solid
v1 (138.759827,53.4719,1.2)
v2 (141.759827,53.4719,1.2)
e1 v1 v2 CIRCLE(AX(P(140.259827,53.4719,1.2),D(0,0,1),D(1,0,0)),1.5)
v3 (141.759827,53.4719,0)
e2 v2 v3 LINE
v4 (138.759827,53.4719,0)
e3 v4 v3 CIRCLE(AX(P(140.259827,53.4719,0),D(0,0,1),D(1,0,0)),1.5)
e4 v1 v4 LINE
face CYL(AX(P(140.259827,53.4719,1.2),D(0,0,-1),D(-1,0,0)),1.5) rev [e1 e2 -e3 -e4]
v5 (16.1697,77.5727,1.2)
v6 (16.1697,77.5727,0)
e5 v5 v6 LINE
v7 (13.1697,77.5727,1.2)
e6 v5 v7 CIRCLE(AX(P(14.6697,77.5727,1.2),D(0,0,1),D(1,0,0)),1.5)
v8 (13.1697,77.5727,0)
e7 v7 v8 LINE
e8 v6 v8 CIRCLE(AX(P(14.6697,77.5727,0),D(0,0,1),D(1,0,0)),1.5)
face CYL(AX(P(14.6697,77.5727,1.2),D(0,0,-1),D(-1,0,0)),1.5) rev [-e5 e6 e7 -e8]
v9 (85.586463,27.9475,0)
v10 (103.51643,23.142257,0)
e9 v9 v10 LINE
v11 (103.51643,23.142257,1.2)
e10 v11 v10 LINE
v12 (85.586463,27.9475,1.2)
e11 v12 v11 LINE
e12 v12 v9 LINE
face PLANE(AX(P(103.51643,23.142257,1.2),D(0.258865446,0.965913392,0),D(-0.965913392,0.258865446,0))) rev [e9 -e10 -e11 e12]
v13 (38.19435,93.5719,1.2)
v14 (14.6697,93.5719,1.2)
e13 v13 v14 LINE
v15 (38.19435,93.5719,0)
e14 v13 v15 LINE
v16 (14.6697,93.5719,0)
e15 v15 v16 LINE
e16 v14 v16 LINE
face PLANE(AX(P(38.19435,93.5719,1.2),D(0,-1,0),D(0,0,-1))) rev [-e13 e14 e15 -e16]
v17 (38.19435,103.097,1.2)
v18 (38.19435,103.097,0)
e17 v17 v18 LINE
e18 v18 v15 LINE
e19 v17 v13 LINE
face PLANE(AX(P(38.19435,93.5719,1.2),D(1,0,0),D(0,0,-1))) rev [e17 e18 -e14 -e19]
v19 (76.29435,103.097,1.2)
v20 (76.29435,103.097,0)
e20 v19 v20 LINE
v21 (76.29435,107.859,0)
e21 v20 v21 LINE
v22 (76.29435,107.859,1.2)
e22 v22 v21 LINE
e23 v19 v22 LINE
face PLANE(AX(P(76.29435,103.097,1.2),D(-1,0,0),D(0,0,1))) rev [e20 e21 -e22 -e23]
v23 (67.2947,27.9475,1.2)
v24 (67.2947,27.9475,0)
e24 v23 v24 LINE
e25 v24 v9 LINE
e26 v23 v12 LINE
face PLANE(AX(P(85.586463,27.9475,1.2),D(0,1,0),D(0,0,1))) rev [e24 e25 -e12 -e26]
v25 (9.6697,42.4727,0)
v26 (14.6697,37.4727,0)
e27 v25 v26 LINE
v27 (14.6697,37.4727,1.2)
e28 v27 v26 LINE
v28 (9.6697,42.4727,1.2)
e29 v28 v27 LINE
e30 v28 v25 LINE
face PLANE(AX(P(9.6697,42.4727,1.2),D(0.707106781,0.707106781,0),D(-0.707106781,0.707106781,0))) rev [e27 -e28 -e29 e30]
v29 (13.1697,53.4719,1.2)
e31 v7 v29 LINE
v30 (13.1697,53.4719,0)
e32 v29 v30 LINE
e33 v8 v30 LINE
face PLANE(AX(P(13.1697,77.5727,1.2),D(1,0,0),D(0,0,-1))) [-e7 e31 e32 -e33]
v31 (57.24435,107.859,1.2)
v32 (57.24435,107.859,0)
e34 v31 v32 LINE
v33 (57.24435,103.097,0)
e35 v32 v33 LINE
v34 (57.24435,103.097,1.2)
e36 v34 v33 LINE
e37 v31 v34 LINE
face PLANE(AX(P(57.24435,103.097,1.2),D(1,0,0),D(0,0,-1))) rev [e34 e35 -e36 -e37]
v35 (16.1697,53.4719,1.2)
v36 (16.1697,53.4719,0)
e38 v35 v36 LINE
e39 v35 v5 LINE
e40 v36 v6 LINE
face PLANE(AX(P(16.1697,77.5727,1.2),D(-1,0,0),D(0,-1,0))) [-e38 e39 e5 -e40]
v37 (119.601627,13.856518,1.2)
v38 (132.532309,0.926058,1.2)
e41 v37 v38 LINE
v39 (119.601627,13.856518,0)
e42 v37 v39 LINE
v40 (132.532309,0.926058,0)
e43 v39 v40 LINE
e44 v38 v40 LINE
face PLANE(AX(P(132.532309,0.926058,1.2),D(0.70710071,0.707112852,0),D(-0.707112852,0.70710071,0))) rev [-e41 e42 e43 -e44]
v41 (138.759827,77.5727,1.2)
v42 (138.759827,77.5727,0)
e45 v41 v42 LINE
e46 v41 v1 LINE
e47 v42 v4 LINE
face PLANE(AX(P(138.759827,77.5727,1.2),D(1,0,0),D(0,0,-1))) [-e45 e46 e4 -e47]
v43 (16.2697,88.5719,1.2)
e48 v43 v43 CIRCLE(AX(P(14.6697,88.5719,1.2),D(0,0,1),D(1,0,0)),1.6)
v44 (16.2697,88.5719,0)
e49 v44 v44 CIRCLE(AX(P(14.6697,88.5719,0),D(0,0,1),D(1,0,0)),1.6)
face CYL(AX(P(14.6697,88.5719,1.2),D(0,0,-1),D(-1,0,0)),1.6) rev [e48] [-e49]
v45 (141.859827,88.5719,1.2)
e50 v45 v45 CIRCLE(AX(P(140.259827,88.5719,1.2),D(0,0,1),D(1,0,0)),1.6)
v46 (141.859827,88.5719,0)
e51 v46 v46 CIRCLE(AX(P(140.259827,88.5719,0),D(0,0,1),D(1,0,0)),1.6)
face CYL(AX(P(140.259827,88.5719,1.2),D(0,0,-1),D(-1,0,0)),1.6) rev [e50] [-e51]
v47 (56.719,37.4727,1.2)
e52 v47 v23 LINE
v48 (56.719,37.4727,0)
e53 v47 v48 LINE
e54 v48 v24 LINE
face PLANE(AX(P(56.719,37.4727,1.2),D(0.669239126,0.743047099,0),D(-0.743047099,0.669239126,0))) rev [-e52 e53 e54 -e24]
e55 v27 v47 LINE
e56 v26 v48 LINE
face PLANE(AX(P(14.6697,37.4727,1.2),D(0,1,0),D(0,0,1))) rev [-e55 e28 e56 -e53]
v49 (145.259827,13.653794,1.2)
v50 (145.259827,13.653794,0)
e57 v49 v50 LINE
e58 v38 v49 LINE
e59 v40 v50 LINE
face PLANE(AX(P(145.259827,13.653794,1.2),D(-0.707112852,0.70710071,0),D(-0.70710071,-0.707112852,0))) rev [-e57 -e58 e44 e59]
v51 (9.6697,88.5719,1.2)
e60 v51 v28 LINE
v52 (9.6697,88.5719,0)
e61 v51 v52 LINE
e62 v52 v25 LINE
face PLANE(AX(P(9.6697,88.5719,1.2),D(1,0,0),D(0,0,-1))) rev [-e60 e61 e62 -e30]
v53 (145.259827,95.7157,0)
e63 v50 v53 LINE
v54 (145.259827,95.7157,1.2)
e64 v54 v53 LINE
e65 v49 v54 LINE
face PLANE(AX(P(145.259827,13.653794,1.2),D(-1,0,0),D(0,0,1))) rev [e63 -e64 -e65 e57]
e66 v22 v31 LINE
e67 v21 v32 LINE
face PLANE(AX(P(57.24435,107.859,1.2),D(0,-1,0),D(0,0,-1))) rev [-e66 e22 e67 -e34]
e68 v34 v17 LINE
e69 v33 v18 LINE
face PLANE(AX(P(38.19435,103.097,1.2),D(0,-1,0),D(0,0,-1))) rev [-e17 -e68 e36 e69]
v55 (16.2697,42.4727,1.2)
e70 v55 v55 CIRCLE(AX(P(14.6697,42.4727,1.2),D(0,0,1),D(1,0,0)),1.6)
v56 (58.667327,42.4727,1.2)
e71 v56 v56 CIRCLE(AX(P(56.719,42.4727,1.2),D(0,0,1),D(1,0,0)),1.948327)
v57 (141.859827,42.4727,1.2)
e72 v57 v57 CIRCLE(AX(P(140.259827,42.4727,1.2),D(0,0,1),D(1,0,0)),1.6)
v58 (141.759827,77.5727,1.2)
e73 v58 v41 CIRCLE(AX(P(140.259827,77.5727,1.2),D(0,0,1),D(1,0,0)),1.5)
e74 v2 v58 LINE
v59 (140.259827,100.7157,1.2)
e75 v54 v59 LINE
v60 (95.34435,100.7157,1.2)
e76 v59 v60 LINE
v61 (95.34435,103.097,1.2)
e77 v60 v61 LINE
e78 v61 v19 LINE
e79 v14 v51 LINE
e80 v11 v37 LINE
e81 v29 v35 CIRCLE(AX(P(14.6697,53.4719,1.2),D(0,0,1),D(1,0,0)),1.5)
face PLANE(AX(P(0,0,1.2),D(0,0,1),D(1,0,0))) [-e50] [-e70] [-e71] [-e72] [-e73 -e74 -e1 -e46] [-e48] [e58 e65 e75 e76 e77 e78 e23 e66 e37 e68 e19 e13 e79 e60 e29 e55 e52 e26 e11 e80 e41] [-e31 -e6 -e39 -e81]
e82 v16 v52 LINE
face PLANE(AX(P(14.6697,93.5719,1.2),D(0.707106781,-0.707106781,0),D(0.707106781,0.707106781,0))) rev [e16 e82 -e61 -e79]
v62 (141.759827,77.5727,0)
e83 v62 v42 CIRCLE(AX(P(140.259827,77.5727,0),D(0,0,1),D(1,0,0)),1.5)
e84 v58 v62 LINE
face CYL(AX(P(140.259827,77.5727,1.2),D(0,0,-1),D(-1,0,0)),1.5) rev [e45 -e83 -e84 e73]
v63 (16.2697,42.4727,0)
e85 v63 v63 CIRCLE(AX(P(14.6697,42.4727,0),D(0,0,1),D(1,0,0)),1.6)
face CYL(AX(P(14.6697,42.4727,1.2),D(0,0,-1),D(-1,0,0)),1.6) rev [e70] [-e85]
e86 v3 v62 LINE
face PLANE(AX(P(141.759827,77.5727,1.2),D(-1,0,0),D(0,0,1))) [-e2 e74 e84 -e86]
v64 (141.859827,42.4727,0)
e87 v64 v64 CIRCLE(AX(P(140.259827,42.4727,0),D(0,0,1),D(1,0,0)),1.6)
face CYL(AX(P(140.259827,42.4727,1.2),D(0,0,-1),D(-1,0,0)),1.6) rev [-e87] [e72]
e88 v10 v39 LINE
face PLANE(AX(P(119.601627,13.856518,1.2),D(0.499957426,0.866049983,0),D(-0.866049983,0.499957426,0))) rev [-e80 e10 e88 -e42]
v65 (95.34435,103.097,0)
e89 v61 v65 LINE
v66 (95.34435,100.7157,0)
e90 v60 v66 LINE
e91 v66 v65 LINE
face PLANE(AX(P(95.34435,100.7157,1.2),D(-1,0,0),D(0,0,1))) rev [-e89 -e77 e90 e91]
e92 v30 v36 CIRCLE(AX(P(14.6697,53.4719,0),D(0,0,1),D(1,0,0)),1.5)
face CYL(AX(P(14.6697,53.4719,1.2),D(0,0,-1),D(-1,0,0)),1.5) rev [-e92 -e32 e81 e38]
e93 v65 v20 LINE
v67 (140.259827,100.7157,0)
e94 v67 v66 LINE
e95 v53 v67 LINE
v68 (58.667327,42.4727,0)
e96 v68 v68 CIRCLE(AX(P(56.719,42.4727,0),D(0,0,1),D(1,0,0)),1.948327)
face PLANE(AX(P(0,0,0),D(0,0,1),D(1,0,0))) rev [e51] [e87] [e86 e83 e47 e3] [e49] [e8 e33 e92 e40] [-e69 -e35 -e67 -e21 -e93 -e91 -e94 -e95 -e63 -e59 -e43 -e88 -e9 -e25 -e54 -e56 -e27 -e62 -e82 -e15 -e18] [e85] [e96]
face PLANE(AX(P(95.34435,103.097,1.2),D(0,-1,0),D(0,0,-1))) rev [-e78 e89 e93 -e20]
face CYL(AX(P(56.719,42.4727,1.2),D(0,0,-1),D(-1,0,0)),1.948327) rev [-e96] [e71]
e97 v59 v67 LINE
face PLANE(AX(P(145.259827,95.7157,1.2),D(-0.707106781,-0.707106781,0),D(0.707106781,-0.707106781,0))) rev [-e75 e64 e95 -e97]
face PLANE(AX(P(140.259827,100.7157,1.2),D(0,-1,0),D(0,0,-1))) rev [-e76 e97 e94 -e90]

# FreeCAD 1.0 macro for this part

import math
import FreeCAD as App
import Part
import Sketcher

V = App.Vector
Q = App.Units.Quantity

doc = App.newDocument("Part")
body = doc.addObject("PartDesign::Body", "Body")

sketch1 = body.newObject("Sketcher::SketchObject", "Sketch")
sketch1.AttachmentSupport = (doc.getObject("XY_Plane"), [""])
sketch1.MapMode = "FlatFace"
sketch1.addGeometry(Part.LineSegment(V(38.19435, 93.5719, 0), V(14.6697, 93.5719, 0)), False)
sketch1.addGeometry(Part.LineSegment(V(14.6697, 93.5719, 0), V(9.6697, 88.5719, 0)), False)
sketch1.addGeometry(Part.LineSegment(V(9.6697, 88.5719, 0), V(9.6697, 42.4727, 0)), False)
sketch1.addGeometry(Part.LineSegment(V(9.6697, 42.4727, 0), V(14.6697, 37.4727, 0)), False)
sketch1.addGeometry(Part.LineSegment(V(14.6697, 37.4727, 0), V(56.719, 37.4727, 0)), False)
sketch1.addGeometry(Part.LineSegment(V(56.719, 37.4727, 0), V(67.2947, 27.9475, 0)), False)
sketch1.addGeometry(Part.LineSegment(V(67.2947, 27.9475, 0), V(85.586463, 27.9475, 0)), False)
sketch1.addGeometry(Part.LineSegment(V(85.586463, 27.9475, 0), V(103.51643, 23.142257, 0)), False)
sketch1.addGeometry(Part.LineSegment(V(103.51643, 23.142257, 0), V(119.601627, 13.856518, 0)), False)
sketch1.addGeometry(Part.LineSegment(V(119.601627, 13.856518, 0), V(132.532309, 0.926058, 0)), False)
sketch1.addGeometry(Part.LineSegment(V(132.532309, 0.926058, 0), V(145.259827, 13.653794, 0)), False)
sketch1.addGeometry(Part.LineSegment(V(145.259827, 13.653794, 0), V(145.259827, 95.7157, 0)), False)
sketch1.addGeometry(Part.LineSegment(V(145.259827, 95.7157, 0), V(140.259827, 100.7157, 0)), False)
sketch1.addGeometry(Part.LineSegment(V(140.259827, 100.7157, 0), V(95.34435, 100.7157, 0)), False)
sketch1.addGeometry(Part.LineSegment(V(95.34435, 100.7157, 0), V(95.34435, 103.097, 0)), False)
sketch1.addGeometry(Part.LineSegment(V(95.34435, 103.097, 0), V(76.29435, 103.097, 0)), False)
sketch1.addGeometry(Part.LineSegment(V(76.29435, 103.097, 0), V(76.29435, 107.859, 0)), False)
sketch1.addGeometry(Part.LineSegment(V(76.29435, 107.859, 0), V(57.24435, 107.859, 0)), False)
sketch1.addGeometry(Part.LineSegment(V(57.24435, 107.859, 0), V(57.24435, 103.097, 0)), False)
sketch1.addGeometry(Part.LineSegment(V(57.24435, 103.097, 0), V(38.19435, 103.097, 0)), False)
sketch1.addGeometry(Part.LineSegment(V(38.19435, 103.097, 0), V(38.19435, 93.5719, 0)), False)
sketch1.addGeometry(Part.Circle(V(14.6697, 42.4727, 0), V(0, 0, 1), 1.6), False)
sketch1.addGeometry(Part.Circle(V(56.719, 42.4727, 0), V(0, 0, 1), 1.948327), False)
sketch1.addGeometry(Part.Circle(V(140.259827, 42.4727, 0), V(0, 0, 1), 1.6), False)
sketch1.addGeometry(Part.ArcOfCircle(Part.Circle(V(14.6697, 77.5727, 0), V(0, 0, 1), 1.5), math.radians(0), math.radians(180)), False)
sketch1.addGeometry(Part.LineSegment(V(16.1697, 77.5727, 0), V(16.1697, 53.4719, 0)), False)
sketch1.addGeometry(Part.ArcOfCircle(Part.Circle(V(14.6697, 53.4719, 0), V(0, 0, 1), 1.5), math.radians(180), math.radians(360)), False)
sketch1.addGeometry(Part.LineSegment(V(13.1697, 53.4719, 0), V(13.1697, 77.5727, 0)), False)
sketch1.addGeometry(Part.Circle(V(14.6697, 88.5719, 0), V(0, 0, 1), 1.6), False)
sketch1.addGeometry(Part.ArcOfCircle(Part.Circle(V(140.259827, 77.5727, 0), V(0, 0, 1), 1.5), math.radians(0), math.radians(180)), False)
sketch1.addGeometry(Part.LineSegment(V(141.759827, 77.5727, 0), V(141.759827, 53.4719, 0)), False)
sketch1.addGeometry(Part.ArcOfCircle(Part.Circle(V(140.259827, 53.4719, 0), V(0, 0, 1), 1.5), math.radians(180), math.radians(360)), False)
sketch1.addGeometry(Part.LineSegment(V(138.759827, 53.4719, 0), V(138.759827, 77.5727, 0)), False)
sketch1.addGeometry(Part.Circle(V(140.259827, 88.5719, 0), V(0, 0, 1), 1.6), False)
sketch1.addConstraint(Sketcher.Constraint("Coincident", 0, 2, 1, 1))
sketch1.addConstraint(Sketcher.Constraint("Coincident", 1, 2, 2, 1))
sketch1.addConstraint(Sketcher.Constraint("Coincident", 2, 2, 3, 1))
sketch1.addConstraint(Sketcher.Constraint("Coincident", 3, 2, 4, 1))
sketch1.addConstraint(Sketcher.Constraint("Coincident", 4, 2, 5, 1))
sketch1.addConstraint(Sketcher.Constraint("Coincident", 5, 2, 6, 1))
sketch1.addConstraint(Sketcher.Constraint("Coincident", 6, 2, 7, 1))
sketch1.addConstraint(Sketcher.Constraint("Coincident", 7, 2, 8, 1))
sketch1.addConstraint(Sketcher.Constraint("Coincident", 8, 2, 9, 1))
sketch1.addConstraint(Sketcher.Constraint("Coincident", 9, 2, 10, 1))
sketch1.addConstraint(Sketcher.Constraint("Coincident", 10, 2, 11, 1))
sketch1.addConstraint(Sketcher.Constraint("Coincident", 11, 2, 12, 1))
sketch1.addConstraint(Sketcher.Constraint("Coincident", 12, 2, 13, 1))
sketch1.addConstraint(Sketcher.Constraint("Coincident", 13, 2, 14, 1))
sketch1.addConstraint(Sketcher.Constraint("Coincident", 14, 2, 15, 1))
sketch1.addConstraint(Sketcher.Constraint("Coincident", 15, 2, 16, 1))
sketch1.addConstraint(Sketcher.Constraint("Coincident", 16, 2, 17, 1))
sketch1.addConstraint(Sketcher.Constraint("Coincident", 17, 2, 18, 1))
sketch1.addConstraint(Sketcher.Constraint("Coincident", 18, 2, 19, 1))
sketch1.addConstraint(Sketcher.Constraint("Coincident", 19, 2, 20, 1))
sketch1.addConstraint(Sketcher.Constraint("Coincident", 20, 2, 0, 1))
sketch1.addConstraint(Sketcher.Constraint("Tangent", 24, 1, 25, 1))
sketch1.addConstraint(Sketcher.Constraint("Tangent", 25, 2, 26, 2))
sketch1.addConstraint(Sketcher.Constraint("Tangent", 26, 1, 27, 1))
sketch1.addConstraint(Sketcher.Constraint("Tangent", 27, 2, 24, 2))
sketch1.addConstraint(Sketcher.Constraint("Tangent", 29, 1, 30, 1))
sketch1.addConstraint(Sketcher.Constraint("Tangent", 30, 2, 31, 2))
sketch1.addConstraint(Sketcher.Constraint("Tangent", 31, 1, 32, 1))
sketch1.addConstraint(Sketcher.Constraint("Tangent", 32, 2, 29, 2))
sketch1.addConstraint(Sketcher.Constraint("Horizontal", 0))
sketch1.addConstraint(Sketcher.Constraint("Vertical", 2))
sketch1.addConstraint(Sketcher.Constraint("Horizontal", 4))
sketch1.addConstraint(Sketcher.Constraint("Horizontal", 6))
sketch1.addConstraint(Sketcher.Constraint("Vertical", 11))
sketch1.addConstraint(Sketcher.Constraint("Horizontal", 13))
sketch1.addConstraint(Sketcher.Constraint("Vertical", 14))
sketch1.addConstraint(Sketcher.Constraint("Horizontal", 15))
sketch1.addConstraint(Sketcher.Constraint("Vertical", 16))
sketch1.addConstraint(Sketcher.Constraint("Horizontal", 17))
sketch1.addConstraint(Sketcher.Constraint("Vertical", 18))
sketch1.addConstraint(Sketcher.Constraint("Horizontal", 19))
sketch1.addConstraint(Sketcher.Constraint("Vertical", 20))
sketch1.addConstraint(Sketcher.Constraint("Vertical", 25))
sketch1.addConstraint(Sketcher.Constraint("Vertical", 27))
sketch1.addConstraint(Sketcher.Constraint("Vertical", 30))
sketch1.addConstraint(Sketcher.Constraint("Vertical", 32))
sketch1.addConstraint(Sketcher.Constraint("Equal", 21, 23))
sketch1.addConstraint(Sketcher.Constraint("Equal", 23, 28))
sketch1.addConstraint(Sketcher.Constraint("Equal", 26, 29))
sketch1.addConstraint(Sketcher.Constraint("Equal", 28, 33))
sketch1.addConstraint(Sketcher.Constraint("Perpendicular", 1, 3))
sketch1.addConstraint(Sketcher.Constraint("Perpendicular", 9, 10))
sketch1.addConstraint(Sketcher.Constraint("Parallel", 3, 12))
sketch1.addConstraint(Sketcher.Constraint("Horizontal", 21, 3, 22, 3))
sketch1.addConstraint(Sketcher.Constraint("Horizontal", 22, 3, 23, 3))
sketch1.addConstraint(Sketcher.Constraint("Horizontal", 24, 3, 29, 3))
sketch1.addConstraint(Sketcher.Constraint("Horizontal", 26, 3, 31, 3))
sketch1.addConstraint(Sketcher.Constraint("Horizontal", 28, 3, 33, 3))
sketch1.addConstraint(Sketcher.Constraint("Horizontal", 33, 3, 1, 2))
sketch1.addConstraint(Sketcher.Constraint("Horizontal", 23, 3, 2, 2))
sketch1.addConstraint(Sketcher.Constraint("Horizontal", 15, 2, 18, 2))
sketch1.addConstraint(Sketcher.Constraint("Vertical", 21, 3, 24, 3))
sketch1.addConstraint(Sketcher.Constraint("Vertical", 26, 3, 28, 3))
sketch1.addConstraint(Sketcher.Constraint("Vertical", 23, 3, 29, 3))
sketch1.addConstraint(Sketcher.Constraint("Vertical", 31, 3, 33, 3))
sketch1.addConstraint(Sketcher.Constraint("Vertical", 28, 3, 0, 2))
sketch1.addConstraint(Sketcher.Constraint("Vertical", 0, 2, 3, 2))
sketch1.addConstraint(Sketcher.Constraint("Vertical", 22, 3, 4, 2))
sketch1.addConstraint(Sketcher.Constraint("Vertical", 33, 3, 12, 2))
sketch1.addConstraint(Sketcher.Constraint("Equal", 15, 17))
sketch1.addConstraint(Sketcher.Constraint("Equal", 17, 19))
sketch1.addConstraint(Sketcher.Constraint("Equal", 1, 3))
sketch1.addConstraint(Sketcher.Constraint("Equal", 3, 12))
sketch1.addConstraint(Sketcher.Constraint("Diameter", 21, Q("3.2 mm")))
sketch1.addConstraint(Sketcher.Constraint("Radius", 24, Q("1.5 mm")))
sketch1.addConstraint(Sketcher.Constraint("DistanceY", 28, 3, 0, 2, Q("5 mm")))
sketch1.addConstraint(Sketcher.Constraint("DistanceX", 15, 2, 15, 1, Q("19.05 mm")))
sketch1.addConstraint(Sketcher.Constraint("DistanceY", 21, 3, 24, 3, Q("35.1 mm")))
sketch1.addConstraint(Sketcher.Constraint("DistanceY", 26, 3, 28, 3, Q("35.1 mm")))
sketch1.addConstraint(Sketcher.Constraint("DistanceY", 16, 1, 16, 2, Q("4.762 mm")))
sketch1.addConstraint(Sketcher.Constraint("Diameter", 22, Q("3.896654 mm")))
sketch1.addConstraint(Sketcher.Constraint("DistanceX", 4, 1, 4, 2, Q("42.0493 mm")))
sketch1.addConstraint(Sketcher.Constraint("DistanceY", 2, 2, 2, 1, Q("46.0992 mm")))
sketch1.addConstraint(Sketcher.Constraint("DistanceY", 14, 1, 14, 2, Q("2.3813 mm")))
sketch1.addConstraint(Sketcher.Constraint("DistanceY", 20, 2, 20, 1, Q("9.5251 mm")))
sketch1.addConstraint(Sketcher.Constraint("DistanceX", -1, 1, 22, 3, Q("56.719 mm")))
sketch1.addConstraint(Sketcher.Constraint("DistanceY", -1, 1, 14, 2, Q("103.097 mm")))
sketch1.addConstraint(Sketcher.Constraint("DistanceX", 3, 2, 5, 2, Q("52.625 mm")))
sketch1.addConstraint(Sketcher.Constraint("DistanceX", 0, 2, 0, 1, Q("23.52465 mm")))
sketch1.addConstraint(Sketcher.Constraint("DistanceY", -1, 1, 5, 2, Q("27.9475 mm")))
sketch1.addConstraint(Sketcher.Constraint("DistanceX", 8, 2, 23, 3, Q("20.6582 mm")))
sketch1.addConstraint(Sketcher.Constraint("DistanceY", 9, 2, 7, 2, Q("22.216199 mm")))
sketch1.addConstraint(Sketcher.Constraint("Distance", 8, Q("18.573059 mm")))
sketch1.addConstraint(Sketcher.Constraint("Distance", 9, Q("18.286589 mm")))
sketch1.addConstraint(Sketcher.Constraint("DistanceX", 6, 1, 6, 2, Q("18.291763 mm")))
sketch1.addConstraint(Sketcher.Constraint("DistanceX", 13, 2, 13, 1, Q("44.915477 mm")))
sketch1.addConstraint(Sketcher.Constraint("DistanceY", 11, 1, 11, 2, Q("82.061906 mm")))
sketch1.addConstraint(Sketcher.Constraint("DistanceX", -1, 1, 7, 2, Q("103.51643 mm")))
pad1 = body.newObject("PartDesign::Pad", "Pad")
pad1.Profile = sketch1
pad1.Length = 1.2

doc.recompute()
